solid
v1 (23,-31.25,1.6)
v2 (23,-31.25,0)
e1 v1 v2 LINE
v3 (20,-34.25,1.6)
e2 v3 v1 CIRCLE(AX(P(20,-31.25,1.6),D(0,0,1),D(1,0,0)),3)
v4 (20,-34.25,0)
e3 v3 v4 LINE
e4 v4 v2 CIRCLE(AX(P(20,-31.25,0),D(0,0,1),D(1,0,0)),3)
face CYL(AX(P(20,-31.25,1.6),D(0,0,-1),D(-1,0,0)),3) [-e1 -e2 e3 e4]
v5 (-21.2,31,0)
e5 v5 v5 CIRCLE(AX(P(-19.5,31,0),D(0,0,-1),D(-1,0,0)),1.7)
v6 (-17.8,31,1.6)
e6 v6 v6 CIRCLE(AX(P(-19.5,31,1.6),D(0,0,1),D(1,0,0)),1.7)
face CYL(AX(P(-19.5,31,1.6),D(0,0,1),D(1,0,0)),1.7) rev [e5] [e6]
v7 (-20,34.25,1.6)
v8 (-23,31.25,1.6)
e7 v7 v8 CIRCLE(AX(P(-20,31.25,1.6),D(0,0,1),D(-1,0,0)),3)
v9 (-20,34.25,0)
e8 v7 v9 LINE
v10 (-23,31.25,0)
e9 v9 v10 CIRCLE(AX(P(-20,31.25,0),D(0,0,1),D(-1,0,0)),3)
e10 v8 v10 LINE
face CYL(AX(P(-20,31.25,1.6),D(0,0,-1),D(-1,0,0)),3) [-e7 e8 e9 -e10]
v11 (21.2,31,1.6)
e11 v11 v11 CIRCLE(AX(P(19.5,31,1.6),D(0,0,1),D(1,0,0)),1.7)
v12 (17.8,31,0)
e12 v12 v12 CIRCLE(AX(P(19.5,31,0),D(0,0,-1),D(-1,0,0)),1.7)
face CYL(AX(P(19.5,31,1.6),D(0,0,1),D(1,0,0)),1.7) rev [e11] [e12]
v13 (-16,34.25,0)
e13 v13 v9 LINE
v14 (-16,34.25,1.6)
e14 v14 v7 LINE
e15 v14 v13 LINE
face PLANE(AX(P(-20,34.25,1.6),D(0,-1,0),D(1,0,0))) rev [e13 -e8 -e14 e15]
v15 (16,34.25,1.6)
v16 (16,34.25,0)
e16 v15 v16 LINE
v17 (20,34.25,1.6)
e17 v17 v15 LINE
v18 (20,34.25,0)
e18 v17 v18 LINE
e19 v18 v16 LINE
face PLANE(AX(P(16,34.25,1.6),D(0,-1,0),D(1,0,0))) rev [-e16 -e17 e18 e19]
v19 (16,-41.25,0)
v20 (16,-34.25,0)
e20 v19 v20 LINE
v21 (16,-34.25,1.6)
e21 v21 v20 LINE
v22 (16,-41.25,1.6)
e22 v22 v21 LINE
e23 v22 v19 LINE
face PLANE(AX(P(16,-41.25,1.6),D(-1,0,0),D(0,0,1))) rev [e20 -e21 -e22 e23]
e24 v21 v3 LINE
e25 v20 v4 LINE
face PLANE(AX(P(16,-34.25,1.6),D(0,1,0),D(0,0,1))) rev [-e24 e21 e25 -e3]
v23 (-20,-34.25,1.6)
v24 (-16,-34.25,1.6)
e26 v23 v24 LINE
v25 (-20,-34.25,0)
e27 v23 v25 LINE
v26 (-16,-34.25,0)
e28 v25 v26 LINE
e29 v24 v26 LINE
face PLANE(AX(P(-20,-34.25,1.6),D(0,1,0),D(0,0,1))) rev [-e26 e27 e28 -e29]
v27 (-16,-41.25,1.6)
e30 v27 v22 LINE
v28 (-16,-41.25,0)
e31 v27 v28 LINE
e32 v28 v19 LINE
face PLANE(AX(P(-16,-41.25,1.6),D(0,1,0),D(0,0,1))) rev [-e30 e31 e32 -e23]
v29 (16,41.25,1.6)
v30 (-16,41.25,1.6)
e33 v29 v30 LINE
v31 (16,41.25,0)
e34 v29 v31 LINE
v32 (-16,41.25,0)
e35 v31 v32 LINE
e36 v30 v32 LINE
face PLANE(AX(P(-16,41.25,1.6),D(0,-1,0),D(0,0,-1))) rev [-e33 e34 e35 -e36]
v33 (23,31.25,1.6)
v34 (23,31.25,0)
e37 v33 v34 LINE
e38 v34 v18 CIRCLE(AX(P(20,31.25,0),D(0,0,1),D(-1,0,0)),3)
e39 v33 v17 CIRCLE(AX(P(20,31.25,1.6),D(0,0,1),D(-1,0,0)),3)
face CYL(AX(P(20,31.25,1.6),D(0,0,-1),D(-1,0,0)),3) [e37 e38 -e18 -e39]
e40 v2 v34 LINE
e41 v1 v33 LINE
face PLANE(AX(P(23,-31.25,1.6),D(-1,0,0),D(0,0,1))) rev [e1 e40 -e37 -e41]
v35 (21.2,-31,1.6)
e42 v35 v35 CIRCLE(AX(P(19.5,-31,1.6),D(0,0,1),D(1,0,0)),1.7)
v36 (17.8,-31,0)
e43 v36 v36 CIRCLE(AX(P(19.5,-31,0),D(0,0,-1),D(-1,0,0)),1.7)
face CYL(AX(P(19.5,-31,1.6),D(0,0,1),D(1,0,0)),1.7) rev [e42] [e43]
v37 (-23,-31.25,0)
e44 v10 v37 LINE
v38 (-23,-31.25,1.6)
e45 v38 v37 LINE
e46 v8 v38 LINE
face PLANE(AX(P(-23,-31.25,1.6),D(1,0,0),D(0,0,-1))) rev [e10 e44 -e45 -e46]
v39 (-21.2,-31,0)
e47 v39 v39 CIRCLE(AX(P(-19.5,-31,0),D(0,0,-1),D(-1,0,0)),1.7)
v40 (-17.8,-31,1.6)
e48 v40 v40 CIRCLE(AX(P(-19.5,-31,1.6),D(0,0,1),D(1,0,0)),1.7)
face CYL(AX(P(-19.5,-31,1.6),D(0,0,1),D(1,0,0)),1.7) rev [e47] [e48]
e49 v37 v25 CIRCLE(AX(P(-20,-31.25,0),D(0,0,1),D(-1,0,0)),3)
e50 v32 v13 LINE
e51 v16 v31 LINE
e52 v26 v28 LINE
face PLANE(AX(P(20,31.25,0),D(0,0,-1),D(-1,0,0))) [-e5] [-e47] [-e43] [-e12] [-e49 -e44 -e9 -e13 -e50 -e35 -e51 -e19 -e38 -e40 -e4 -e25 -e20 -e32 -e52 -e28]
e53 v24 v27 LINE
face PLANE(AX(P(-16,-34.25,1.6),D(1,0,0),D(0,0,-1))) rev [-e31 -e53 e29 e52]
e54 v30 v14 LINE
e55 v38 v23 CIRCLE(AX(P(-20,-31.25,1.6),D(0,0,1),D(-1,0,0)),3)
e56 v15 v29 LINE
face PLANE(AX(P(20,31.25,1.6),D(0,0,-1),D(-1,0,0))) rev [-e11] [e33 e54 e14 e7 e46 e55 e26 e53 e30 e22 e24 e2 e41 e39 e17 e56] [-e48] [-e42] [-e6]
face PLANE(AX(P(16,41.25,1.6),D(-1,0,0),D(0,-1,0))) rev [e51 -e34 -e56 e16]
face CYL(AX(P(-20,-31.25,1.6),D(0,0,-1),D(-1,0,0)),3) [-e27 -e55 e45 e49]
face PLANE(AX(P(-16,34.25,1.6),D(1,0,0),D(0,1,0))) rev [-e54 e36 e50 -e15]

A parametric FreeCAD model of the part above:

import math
import FreeCAD as App
import Part
import Sketcher
from FreeCAD import Vector
Q = App.Units.Quantity

doc = App.newDocument("Part")
body = doc.addObject("PartDesign::Body", "Body")

# Sketch on XY plane
sketch1 = body.newObject("Sketcher::SketchObject", "Sketch")
sketch1.AttachmentSupport = (doc.getObject("XY_Plane"), [""])
sketch1.MapMode = "FlatFace"
sketch1.addGeometry([
    Part.LineSegment(Vector(-16, 41.25, 0), Vector(-16, 34.25, 0)),  # 0
    Part.LineSegment(Vector(-16, 34.25, 0), Vector(-20, 34.25, 0)),  # 1
    Part.ArcOfCircle(Part.Circle(Vector(-20, 31.25, 0), Vector(0, 0, 1), 3), math.radians(90), math.radians(180)),  # 2
    Part.LineSegment(Vector(-23, 31.25, 0), Vector(-23, -31.25, 0)),  # 3
    Part.ArcOfCircle(Part.Circle(Vector(-20, -31.25, 0), Vector(0, 0, 1), 3), math.radians(180), math.radians(270)),  # 4
    Part.LineSegment(Vector(-20, -34.25, 0), Vector(-16, -34.25, 0)),  # 5
    Part.LineSegment(Vector(-16, -34.25, 0), Vector(-16, -41.25, 0)),  # 6
    Part.LineSegment(Vector(-16, -41.25, 0), Vector(16, -41.25, 0)),  # 7
    Part.LineSegment(Vector(16, -41.25, 0), Vector(16, -34.25, 0)),  # 8
    Part.LineSegment(Vector(16, -34.25, 0), Vector(20, -34.25, 0)),  # 9
    Part.ArcOfCircle(Part.Circle(Vector(20, -31.25, 0), Vector(0, 0, 1), 3), math.radians(-90), math.radians(0)),  # 10
    Part.LineSegment(Vector(23, -31.25, 0), Vector(23, 31.25, 0)),  # 11
    Part.ArcOfCircle(Part.Circle(Vector(20, 31.25, 0), Vector(0, 0, 1), 3), math.radians(0), math.radians(90)),  # 12
    Part.LineSegment(Vector(20, 34.25, 0), Vector(16, 34.25, 0)),  # 13
    Part.LineSegment(Vector(16, 34.25, 0), Vector(16, 41.25, 0)),  # 14
    Part.LineSegment(Vector(16, 41.25, 0), Vector(-16, 41.25, 0)),  # 15
], False)
sketch1.addConstraint([
    Sketcher.Constraint("Coincident", 0, 2, 1, 1),
    Sketcher.Constraint("Tangent", 1, 2, 2, 1),
    Sketcher.Constraint("Tangent", 2, 2, 3, 1),
    Sketcher.Constraint("Tangent", 3, 2, 4, 1),
    Sketcher.Constraint("Tangent", 4, 2, 5, 1),
    Sketcher.Constraint("Coincident", 5, 2, 6, 1),
    Sketcher.Constraint("Coincident", 6, 2, 7, 1),
    Sketcher.Constraint("Coincident", 7, 2, 8, 1),
    Sketcher.Constraint("Coincident", 8, 2, 9, 1),
    Sketcher.Constraint("Tangent", 9, 2, 10, 1),
    Sketcher.Constraint("Tangent", 10, 2, 11, 1),
    Sketcher.Constraint("Tangent", 11, 2, 12, 1),
    Sketcher.Constraint("Tangent", 12, 2, 13, 1),
    Sketcher.Constraint("Coincident", 13, 2, 14, 1),
    Sketcher.Constraint("Coincident", 14, 2, 15, 1),
    Sketcher.Constraint("Coincident", 15, 2, 0, 1),
    Sketcher.Constraint("Vertical", 0),
    Sketcher.Constraint("Horizontal", 1),
    Sketcher.Constraint("Vertical", 3),
    Sketcher.Constraint("Horizontal", 5),
    Sketcher.Constraint("Vertical", 6),
    Sketcher.Constraint("Horizontal", 7),
    Sketcher.Constraint("Vertical", 8),
    Sketcher.Constraint("Horizontal", 9),
    Sketcher.Constraint("Vertical", 11),
    Sketcher.Constraint("Horizontal", 13),
    Sketcher.Constraint("Vertical", 14),
    Sketcher.Constraint("Horizontal", 15),
    Sketcher.Constraint("Equal", 2, 4),
    Sketcher.Constraint("Equal", 4, 10),
    Sketcher.Constraint("Equal", 10, 12),
    Sketcher.Constraint("Symmetric", 2, 3, 10, 3, -1, 1),
    Sketcher.Constraint("Symmetric", 5, 2, 13, 2, -1, 1),
    Sketcher.Constraint("Symmetric", 7, 2, 15, 2, -1, 1),
    Sketcher.Constraint("Symmetric", 5, 2, 8, 2, -2),
    Sketcher.Constraint("Radius", 2, Q("3 mm")),
    Sketcher.Constraint("DistanceX", 1, 2, 1, 1, Q("4 mm")),
    Sketcher.Constraint("DistanceX", 7, 1, 7, 2, Q("32 mm")),
    Sketcher.Constraint("DistanceY", 0, 2, 0, 1, Q("7 mm")),
    Sketcher.Constraint("DistanceY", 3, 2, 3, 1, Q("62.5 mm")),
])
pad1 = body.newObject("PartDesign::Pad", "Pad")
pad1.Profile = sketch1
pad1.Length = 1.6

# Sketch on XY plane
sketch2 = body.newObject("Sketcher::SketchObject", "Sketch001")
sketch2.AttachmentSupport = (doc.getObject("XY_Plane"), [""])
sketch2.MapMode = "FlatFace"
sketch2.AttachmentOffset = App.Placement(Vector(0, 0, 1.6), App.Rotation())
sketch2.addGeometry([
    Part.Circle(Vector(-19.5, 31, 0), Vector(0, 0, 1), 1.7),
    Part.Circle(Vector(19.5, 31, 0), Vector(0, 0, 1), 1.7),
    Part.Circle(Vector(19.5, -31, 0), Vector(0, 0, 1), 1.7),
    Part.Circle(Vector(-19.5, -31, 0), Vector(0, 0, 1), 1.7),
], False)
sketch2.addConstraint([
    Sketcher.Constraint("Equal", 0, 1),
    Sketcher.Constraint("Equal", 1, 2),
    Sketcher.Constraint("Equal", 2, 3),
    Sketcher.Constraint("Symmetric", 0, 3, 2, 3, -1, 1),
    Sketcher.Constraint("Symmetric", 1, 3, 3, 3, -1, 1),
    Sketcher.Constraint("Symmetric", 0, 3, 1, 3, -2),
    Sketcher.Constraint("Diameter", 0, Q("3.4 mm")),
    Sketcher.Constraint("DistanceY", -1, 1, 0, 3, Q("31 mm")),
    Sketcher.Constraint("DistanceX", 0, 3, 1, 3, Q("39 mm")),
])
doc.recompute()
hole = body.newObject("PartDesign::Hole", "Hole")
hole.Profile = sketch2
hole.ThreadType = "None"
hole.Diameter = 3.4
hole.DepthType = "Dimension"
hole.Depth = 10
hole.DrillPoint = "Angled"
hole.DrillPointAngle = 118

doc.recompute()
